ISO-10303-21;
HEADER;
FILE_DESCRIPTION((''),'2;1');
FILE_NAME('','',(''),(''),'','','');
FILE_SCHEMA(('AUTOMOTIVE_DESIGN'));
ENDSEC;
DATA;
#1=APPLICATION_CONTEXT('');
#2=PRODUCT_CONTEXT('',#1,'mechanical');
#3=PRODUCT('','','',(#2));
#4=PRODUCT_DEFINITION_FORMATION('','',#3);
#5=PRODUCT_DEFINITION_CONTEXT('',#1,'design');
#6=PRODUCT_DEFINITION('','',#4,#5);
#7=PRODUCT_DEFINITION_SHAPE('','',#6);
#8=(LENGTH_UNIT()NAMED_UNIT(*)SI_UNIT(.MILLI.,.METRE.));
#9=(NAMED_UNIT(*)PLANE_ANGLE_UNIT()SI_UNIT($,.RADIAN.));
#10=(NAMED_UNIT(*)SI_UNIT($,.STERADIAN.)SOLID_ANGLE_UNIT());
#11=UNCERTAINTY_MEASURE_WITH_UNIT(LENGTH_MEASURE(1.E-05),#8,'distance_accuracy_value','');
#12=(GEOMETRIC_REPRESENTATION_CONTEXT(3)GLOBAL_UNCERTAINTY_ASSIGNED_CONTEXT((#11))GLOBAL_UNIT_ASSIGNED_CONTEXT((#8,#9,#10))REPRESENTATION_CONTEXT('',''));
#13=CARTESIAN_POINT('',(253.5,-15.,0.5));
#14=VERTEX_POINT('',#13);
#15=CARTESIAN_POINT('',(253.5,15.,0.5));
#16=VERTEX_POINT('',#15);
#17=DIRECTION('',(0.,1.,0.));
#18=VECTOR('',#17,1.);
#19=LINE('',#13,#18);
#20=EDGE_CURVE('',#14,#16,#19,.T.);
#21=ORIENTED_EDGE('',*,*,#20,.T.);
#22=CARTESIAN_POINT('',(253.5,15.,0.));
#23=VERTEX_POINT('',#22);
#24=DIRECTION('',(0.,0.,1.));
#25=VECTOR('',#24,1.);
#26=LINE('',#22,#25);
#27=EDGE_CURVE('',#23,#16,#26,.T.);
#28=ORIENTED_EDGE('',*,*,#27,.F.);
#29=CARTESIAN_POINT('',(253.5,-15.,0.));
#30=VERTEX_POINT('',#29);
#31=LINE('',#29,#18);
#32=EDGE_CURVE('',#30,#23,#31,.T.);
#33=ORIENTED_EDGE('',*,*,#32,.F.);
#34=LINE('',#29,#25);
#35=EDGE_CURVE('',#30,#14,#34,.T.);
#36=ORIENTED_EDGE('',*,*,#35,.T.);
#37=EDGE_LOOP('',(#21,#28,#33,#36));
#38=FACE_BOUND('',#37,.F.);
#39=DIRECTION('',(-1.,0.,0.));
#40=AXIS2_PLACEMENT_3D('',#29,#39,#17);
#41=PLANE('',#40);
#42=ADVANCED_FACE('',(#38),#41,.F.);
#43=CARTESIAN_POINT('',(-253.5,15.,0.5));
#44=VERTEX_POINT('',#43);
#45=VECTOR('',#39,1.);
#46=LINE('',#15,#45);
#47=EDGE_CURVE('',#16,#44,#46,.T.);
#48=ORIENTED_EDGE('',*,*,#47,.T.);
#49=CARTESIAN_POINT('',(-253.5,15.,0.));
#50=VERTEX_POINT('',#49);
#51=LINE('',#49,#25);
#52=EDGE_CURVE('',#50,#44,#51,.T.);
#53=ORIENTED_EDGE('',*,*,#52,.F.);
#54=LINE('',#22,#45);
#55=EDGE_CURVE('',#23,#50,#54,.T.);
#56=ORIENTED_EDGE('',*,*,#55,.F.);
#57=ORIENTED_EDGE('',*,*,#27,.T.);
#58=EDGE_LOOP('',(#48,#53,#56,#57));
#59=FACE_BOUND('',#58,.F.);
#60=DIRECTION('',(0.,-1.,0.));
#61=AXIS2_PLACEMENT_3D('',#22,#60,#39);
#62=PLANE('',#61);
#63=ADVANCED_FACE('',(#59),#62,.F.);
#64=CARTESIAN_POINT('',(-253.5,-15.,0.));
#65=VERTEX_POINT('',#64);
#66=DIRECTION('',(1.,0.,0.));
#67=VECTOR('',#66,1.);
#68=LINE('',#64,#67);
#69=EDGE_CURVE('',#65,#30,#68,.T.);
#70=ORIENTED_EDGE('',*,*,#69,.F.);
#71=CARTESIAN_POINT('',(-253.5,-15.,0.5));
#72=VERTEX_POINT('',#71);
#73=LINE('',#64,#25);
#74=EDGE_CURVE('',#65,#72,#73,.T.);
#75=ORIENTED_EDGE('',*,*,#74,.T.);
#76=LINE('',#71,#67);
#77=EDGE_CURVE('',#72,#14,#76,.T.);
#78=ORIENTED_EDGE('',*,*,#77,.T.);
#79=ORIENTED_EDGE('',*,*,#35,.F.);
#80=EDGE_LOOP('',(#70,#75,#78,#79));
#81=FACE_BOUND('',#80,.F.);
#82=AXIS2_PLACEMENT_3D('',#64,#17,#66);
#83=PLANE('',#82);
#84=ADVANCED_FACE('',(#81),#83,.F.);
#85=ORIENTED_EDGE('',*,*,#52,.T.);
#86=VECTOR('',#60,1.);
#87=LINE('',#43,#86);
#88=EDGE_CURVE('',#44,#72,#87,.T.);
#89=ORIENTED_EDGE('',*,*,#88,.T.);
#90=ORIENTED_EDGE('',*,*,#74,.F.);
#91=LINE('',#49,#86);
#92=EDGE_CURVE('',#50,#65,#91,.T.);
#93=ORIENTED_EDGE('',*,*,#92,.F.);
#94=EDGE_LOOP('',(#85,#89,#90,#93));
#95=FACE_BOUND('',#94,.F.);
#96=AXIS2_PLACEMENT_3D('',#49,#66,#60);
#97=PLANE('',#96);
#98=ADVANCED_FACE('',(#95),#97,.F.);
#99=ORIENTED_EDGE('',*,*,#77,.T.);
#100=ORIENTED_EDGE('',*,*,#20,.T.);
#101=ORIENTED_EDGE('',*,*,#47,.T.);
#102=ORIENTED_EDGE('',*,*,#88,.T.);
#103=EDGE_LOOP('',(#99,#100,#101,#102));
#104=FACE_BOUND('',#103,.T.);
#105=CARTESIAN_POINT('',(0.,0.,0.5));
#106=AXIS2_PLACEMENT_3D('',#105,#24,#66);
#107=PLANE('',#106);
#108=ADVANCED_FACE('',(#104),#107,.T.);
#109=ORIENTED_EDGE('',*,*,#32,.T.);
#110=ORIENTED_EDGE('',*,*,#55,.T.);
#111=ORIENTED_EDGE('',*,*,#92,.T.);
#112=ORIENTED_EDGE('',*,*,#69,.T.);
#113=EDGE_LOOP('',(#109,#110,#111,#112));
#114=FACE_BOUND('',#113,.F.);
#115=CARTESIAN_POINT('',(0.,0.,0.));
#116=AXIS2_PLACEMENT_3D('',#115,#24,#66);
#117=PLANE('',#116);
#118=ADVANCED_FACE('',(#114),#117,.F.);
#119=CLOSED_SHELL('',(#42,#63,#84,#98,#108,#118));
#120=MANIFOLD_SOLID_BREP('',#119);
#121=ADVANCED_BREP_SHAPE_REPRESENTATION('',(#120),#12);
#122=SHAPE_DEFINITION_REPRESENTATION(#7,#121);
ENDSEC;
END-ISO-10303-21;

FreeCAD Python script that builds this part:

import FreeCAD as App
import Part
import Sketcher
from FreeCAD import Vector

doc = App.newDocument("Part")
body = doc.addObject("PartDesign::Body", "Body")

# Sketch on XY plane
sketch1 = body.newObject("Sketcher::SketchObject", "Sketch")
sketch1.AttachmentSupport = (doc.getObject("XY_Plane"), [""])
sketch1.MapMode = "FlatFace"
sketch1.addGeometry([
    Part.LineSegment(Vector(-254, 15, 0), Vector(-254, -15, 0)),
    Part.LineSegment(Vector(-254, -15, 0), Vector(254, -15, 0)),
    Part.LineSegment(Vector(254, -15, 0), Vector(254, 15, 0)),
    Part.LineSegment(Vector(254, 15, 0), Vector(-254, 15, 0)),
], False)
sketch1.addConstraint([
    Sketcher.Constraint("Coincident", 0, 2, 1, 1),
    Sketcher.Constraint("Coincident", 1, 2, 2, 1),
    Sketcher.Constraint("Coincident", 2, 2, 3, 1),
    Sketcher.Constraint("Coincident", 3, 2, 0, 1),
    Sketcher.Constraint("Vertical", 0),
    Sketcher.Constraint("Horizontal", 1),
    Sketcher.Constraint("Vertical", 2),
    Sketcher.Constraint("Horizontal", 3),
    Sketcher.Constraint("Symmetric", 0, 2, 2, 2, -1, 1),
    Sketcher.Constraint("DistanceX", 1, 1, 1, 2, 507.0),
    Sketcher.Constraint("DistanceY", 0, 2, 0, 1, 30.0),
])
pad1 = body.newObject("PartDesign::Pad", "Pad")
pad1.Profile = sketch1
pad1.Length = 0.5

doc.recompute()
